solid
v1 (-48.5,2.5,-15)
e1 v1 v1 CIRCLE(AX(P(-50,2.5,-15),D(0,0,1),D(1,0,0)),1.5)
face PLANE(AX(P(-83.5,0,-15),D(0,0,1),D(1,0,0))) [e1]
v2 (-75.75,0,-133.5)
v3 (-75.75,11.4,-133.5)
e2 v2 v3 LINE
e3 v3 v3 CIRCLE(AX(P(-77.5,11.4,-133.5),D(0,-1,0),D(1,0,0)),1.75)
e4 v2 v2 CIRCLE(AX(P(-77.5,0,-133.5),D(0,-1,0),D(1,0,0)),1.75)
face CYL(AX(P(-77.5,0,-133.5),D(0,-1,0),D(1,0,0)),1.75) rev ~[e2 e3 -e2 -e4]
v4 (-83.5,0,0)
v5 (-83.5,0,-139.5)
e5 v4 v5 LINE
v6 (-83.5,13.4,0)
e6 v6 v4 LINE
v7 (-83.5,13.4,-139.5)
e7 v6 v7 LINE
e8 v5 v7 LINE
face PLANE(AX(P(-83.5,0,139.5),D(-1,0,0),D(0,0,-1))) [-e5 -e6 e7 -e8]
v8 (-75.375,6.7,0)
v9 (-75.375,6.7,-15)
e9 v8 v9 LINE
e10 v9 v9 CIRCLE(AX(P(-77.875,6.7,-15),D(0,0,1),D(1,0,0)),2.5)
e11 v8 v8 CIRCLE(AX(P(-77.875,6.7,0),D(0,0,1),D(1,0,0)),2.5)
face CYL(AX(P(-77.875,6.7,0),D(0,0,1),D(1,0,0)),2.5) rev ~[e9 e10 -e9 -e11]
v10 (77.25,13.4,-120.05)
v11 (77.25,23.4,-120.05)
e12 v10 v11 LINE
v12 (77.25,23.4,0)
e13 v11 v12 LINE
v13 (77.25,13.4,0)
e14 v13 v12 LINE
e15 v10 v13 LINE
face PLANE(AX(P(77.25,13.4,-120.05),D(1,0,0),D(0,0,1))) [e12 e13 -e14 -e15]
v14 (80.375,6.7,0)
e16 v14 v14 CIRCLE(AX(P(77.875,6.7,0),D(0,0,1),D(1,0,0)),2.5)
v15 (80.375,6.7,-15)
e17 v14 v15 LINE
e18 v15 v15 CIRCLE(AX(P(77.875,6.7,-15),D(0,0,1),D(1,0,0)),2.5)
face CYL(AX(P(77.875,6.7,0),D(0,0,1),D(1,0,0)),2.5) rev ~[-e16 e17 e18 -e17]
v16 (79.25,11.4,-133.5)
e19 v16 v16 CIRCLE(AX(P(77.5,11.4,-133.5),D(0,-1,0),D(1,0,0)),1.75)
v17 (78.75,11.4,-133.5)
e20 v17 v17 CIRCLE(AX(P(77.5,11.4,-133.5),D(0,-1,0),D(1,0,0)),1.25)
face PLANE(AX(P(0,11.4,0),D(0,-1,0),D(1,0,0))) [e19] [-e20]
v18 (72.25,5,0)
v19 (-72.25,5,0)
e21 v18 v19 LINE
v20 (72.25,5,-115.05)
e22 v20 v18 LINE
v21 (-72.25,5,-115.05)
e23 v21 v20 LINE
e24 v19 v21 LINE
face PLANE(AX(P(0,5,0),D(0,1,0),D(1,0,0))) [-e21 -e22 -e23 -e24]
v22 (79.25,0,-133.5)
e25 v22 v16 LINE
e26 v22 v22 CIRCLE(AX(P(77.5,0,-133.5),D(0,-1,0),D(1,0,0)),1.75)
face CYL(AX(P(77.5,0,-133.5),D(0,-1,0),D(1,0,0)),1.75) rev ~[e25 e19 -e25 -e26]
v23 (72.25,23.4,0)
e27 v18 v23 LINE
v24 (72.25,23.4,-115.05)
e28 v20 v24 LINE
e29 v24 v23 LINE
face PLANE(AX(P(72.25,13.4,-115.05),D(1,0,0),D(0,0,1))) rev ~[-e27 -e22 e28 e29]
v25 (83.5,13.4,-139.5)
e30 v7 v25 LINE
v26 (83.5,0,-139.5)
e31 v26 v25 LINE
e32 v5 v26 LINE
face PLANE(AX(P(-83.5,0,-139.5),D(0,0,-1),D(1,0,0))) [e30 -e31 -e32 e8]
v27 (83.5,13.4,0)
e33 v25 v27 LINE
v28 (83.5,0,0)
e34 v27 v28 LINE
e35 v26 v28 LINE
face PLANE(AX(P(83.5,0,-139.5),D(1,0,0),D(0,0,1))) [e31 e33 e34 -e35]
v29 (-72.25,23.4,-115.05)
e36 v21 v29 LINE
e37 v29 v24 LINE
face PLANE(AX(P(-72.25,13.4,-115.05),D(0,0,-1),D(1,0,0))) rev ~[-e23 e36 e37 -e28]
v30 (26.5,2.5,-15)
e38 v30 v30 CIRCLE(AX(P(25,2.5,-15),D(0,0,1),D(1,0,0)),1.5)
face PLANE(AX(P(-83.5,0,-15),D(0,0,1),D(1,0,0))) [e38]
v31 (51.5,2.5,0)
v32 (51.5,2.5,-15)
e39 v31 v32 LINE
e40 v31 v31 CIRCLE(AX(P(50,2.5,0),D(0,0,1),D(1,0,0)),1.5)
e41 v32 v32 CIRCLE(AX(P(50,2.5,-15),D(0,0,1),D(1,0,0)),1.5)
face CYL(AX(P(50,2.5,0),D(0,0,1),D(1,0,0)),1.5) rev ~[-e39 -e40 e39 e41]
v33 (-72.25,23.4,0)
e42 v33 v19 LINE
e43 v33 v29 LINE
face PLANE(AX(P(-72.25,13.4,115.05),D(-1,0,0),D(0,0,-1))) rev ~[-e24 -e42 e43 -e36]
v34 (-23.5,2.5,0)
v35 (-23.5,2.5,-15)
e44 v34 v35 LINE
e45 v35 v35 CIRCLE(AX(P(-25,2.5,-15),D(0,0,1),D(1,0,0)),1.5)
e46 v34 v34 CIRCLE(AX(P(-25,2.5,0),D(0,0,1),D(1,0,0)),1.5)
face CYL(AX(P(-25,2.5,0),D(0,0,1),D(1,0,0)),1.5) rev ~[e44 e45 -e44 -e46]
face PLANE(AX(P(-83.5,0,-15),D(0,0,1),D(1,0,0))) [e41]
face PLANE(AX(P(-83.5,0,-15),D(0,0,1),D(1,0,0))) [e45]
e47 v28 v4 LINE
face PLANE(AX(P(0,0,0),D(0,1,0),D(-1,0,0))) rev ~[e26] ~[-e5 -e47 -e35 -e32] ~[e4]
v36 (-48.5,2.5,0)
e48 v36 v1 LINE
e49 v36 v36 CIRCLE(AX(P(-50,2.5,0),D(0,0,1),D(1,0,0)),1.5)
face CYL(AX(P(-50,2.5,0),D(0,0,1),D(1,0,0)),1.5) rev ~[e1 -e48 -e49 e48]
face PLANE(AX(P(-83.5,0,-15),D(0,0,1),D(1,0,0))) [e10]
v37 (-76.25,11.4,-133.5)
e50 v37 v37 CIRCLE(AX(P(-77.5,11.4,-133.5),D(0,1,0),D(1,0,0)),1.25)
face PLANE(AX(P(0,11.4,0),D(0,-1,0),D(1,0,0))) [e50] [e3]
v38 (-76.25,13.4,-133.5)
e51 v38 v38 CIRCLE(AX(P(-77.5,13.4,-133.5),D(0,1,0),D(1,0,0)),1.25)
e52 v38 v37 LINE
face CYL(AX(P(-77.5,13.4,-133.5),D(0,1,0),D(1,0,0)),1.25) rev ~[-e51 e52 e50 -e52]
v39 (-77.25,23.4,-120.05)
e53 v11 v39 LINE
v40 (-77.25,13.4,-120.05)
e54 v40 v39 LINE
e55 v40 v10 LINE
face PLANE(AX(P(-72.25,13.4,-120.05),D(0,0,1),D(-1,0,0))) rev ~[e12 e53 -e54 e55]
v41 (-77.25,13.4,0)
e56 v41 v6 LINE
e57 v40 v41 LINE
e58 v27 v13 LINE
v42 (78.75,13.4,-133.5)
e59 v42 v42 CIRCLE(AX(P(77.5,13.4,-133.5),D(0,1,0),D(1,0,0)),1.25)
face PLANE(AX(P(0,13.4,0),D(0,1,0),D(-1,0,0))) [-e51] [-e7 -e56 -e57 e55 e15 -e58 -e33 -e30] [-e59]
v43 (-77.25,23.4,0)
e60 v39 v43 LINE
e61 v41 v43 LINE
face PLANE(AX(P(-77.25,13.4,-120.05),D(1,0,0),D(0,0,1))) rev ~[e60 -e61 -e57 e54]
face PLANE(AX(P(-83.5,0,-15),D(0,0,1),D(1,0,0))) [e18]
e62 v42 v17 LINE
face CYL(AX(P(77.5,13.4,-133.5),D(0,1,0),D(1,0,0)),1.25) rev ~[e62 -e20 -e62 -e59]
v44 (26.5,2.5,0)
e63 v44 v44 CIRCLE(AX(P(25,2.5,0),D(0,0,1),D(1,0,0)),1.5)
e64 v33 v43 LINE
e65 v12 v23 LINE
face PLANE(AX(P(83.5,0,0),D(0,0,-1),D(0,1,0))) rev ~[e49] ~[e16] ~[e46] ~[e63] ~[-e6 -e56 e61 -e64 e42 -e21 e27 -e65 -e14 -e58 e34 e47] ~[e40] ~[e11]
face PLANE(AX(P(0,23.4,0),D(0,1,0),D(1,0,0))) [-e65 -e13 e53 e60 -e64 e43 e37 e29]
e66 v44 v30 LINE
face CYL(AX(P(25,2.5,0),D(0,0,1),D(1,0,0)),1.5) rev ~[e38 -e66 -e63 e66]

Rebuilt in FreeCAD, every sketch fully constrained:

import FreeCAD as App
import Part
import Sketcher
Q = App.Units.Quantity

doc = App.newDocument("Part")
params = doc.addObject("Spreadsheet::Sheet", "Params")
for row, (alias, value) in enumerate([
    ("sketch1_width", "167 mm"),
    ("sketch1_height", "279 mm"),
    ("pad1_length", "13.4 mm"),
    ("sketch2_width", "144.5 mm"),
    ("sketch2_height", "230.1 mm"),
    ("pocket1_length", "8.4 mm"),
    ("sketch3_diameter", "2.5 mm"),
    ("sketch4_height", "240.1 mm"),
    ("sketch4_width", "154.5 mm"),
    ("pad2_length", "10 mm"),
    ("sketch5_diameter", "3.5 mm"),
    ("sketch5_diameter2", "2.5 mm"),
    ("pocket3_length", "11.4 mm"),
    ("sketch6_width", "23.4 mm"),
    ("sketch6_height", "139.5 mm"),
    ("pocket4_length", "167.1625 mm"),
    ("sketch7_diameter", "5 mm"),
    ("sketch7_diameter2", "3 mm"),
    ("pocket5_length", "15 mm"),
], start=1):
    params.set(f"A{row}", alias)
    params.set(f"B{row}", "=" + value)
    params.setAlias(f"B{row}", alias)

body = doc.addObject("PartDesign::Body", "Body")

# Sketch on XZ plane
sketch1 = body.newObject("Sketcher::SketchObject", "Sketch")
sketch1.AttachmentSupport = (doc.getObject("XZ_Plane"), [""])
sketch1.MapMode = "FlatFace"
sketch1.addGeometry(Part.LineSegment(App.Vector(-83.5, 139.5, 0), App.Vector(83.5, 139.5, 0)), False)
sketch1.addGeometry(Part.LineSegment(App.Vector(83.5, 139.5, 0), App.Vector(83.5, -139.5, 0)), False)
sketch1.addGeometry(Part.LineSegment(App.Vector(83.5, -139.5, 0), App.Vector(-83.5, -139.5, 0)), False)
sketch1.addGeometry(Part.LineSegment(App.Vector(-83.5, -139.5, 0), App.Vector(-83.5, 139.5, 0)), False)
sketch1.addConstraint(Sketcher.Constraint("Coincident", 0, 2, 1, 1))
sketch1.addConstraint(Sketcher.Constraint("Coincident", 1, 2, 2, 1))
sketch1.addConstraint(Sketcher.Constraint("Coincident", 2, 2, 3, 1))
sketch1.addConstraint(Sketcher.Constraint("Coincident", 3, 2, 0, 1))
sketch1.addConstraint(Sketcher.Constraint("Horizontal", 0))
sketch1.addConstraint(Sketcher.Constraint("Vertical", 1))
sketch1.addConstraint(Sketcher.Constraint("Horizontal", 2))
sketch1.addConstraint(Sketcher.Constraint("Vertical", 3))
sketch1.addConstraint(Sketcher.Constraint("Symmetric", 0, 2, 2, 2, -1, 1))
sketch1.addConstraint(Sketcher.Constraint("DistanceX", 0, 1, 0, 2, Q("167 mm")))
sketch1.addConstraint(Sketcher.Constraint("DistanceY", 1, 2, 1, 1, Q("279 mm")))
sketch1.setExpression("Constraints[9]", "Params.sketch1_width")
sketch1.setExpression("Constraints[10]", "Params.sketch1_height")
pad1 = body.newObject("PartDesign::Pad", "Pad")
pad1.Profile = sketch1
pad1.setExpression("Length", "Params.pad1_length")
pad1.Reversed = True

# Sketch on XZ plane
sketch2 = body.newObject("Sketcher::SketchObject", "Sketch001")
sketch2.AttachmentSupport = (doc.getObject("XZ_Plane"), [""])
sketch2.MapMode = "FlatFace"
sketch2.AttachmentOffset = App.Placement(App.Vector(0, 0, -13.4), App.Rotation())
sketch2.addGeometry(Part.LineSegment(App.Vector(-72.25, 115.05, 0), App.Vector(72.25, 115.05, 0)), False)
sketch2.addGeometry(Part.LineSegment(App.Vector(72.25, 115.05, 0), App.Vector(72.25, -115.05, 0)), False)
sketch2.addGeometry(Part.LineSegment(App.Vector(72.25, -115.05, 0), App.Vector(-72.25, -115.05, 0)), False)
sketch2.addGeometry(Part.LineSegment(App.Vector(-72.25, -115.05, 0), App.Vector(-72.25, 115.05, 0)), False)
sketch2.addConstraint(Sketcher.Constraint("Coincident", 0, 2, 1, 1))
sketch2.addConstraint(Sketcher.Constraint("Coincident", 1, 2, 2, 1))
sketch2.addConstraint(Sketcher.Constraint("Coincident", 2, 2, 3, 1))
sketch2.addConstraint(Sketcher.Constraint("Coincident", 3, 2, 0, 1))
sketch2.addConstraint(Sketcher.Constraint("Horizontal", 0))
sketch2.addConstraint(Sketcher.Constraint("Vertical", 1))
sketch2.addConstraint(Sketcher.Constraint("Horizontal", 2))
sketch2.addConstraint(Sketcher.Constraint("Vertical", 3))
sketch2.addConstraint(Sketcher.Constraint("Symmetric", 0, 2, 2, 2, -1, 1))
sketch2.addConstraint(Sketcher.Constraint("DistanceX", 0, 1, 0, 2, Q("144.5 mm")))
sketch2.addConstraint(Sketcher.Constraint("DistanceY", 1, 2, 1, 1, Q("230.1 mm")))
sketch2.setExpression("Constraints[9]", "Params.sketch2_width")
sketch2.setExpression("Constraints[10]", "Params.sketch2_height")
pocket1 = body.newObject("PartDesign::Pocket", "Pocket")
pocket1.Profile = sketch2
pocket1.setExpression("Length", "Params.pocket1_length")
pocket1.Reversed = True

# Sketch on XZ plane
sketch3 = body.newObject("Sketcher::SketchObject", "Sketch002")
sketch3.AttachmentSupport = (doc.getObject("XZ_Plane"), [""])
sketch3.MapMode = "FlatFace"
sketch3.AttachmentOffset = App.Placement(App.Vector(0, 0, -13.4), App.Rotation())
sketch3.addGeometry(Part.Circle(App.Vector(-77.5, 133.5, 0), App.Vector(0, 0, 1), 1.25), False)
sketch3.addGeometry(Part.Circle(App.Vector(-77.5, -133.5, 0), App.Vector(0, 0, 1), 1.25), False)
sketch3.addGeometry(Part.Circle(App.Vector(77.5, -133.5, 0), App.Vector(0, 0, 1), 1.25), False)
sketch3.addGeometry(Part.Circle(App.Vector(77.5, 133.5, 0), App.Vector(0, 0, 1), 1.25), False)
sketch3.addConstraint(Sketcher.Constraint("Equal", 0, 1))
sketch3.addConstraint(Sketcher.Constraint("Equal", 1, 2))
sketch3.addConstraint(Sketcher.Constraint("Equal", 2, 3))
sketch3.addConstraint(Sketcher.Constraint("Symmetric", 0, 3, 2, 3, -1, 1))
sketch3.addConstraint(Sketcher.Constraint("Symmetric", 1, 3, 3, 3, -1, 1))
sketch3.addConstraint(Sketcher.Constraint("Symmetric", 1, 3, 2, 3, -2))
sketch3.addConstraint(Sketcher.Constraint("Diameter", 0, Q("2.5 mm")))
sketch3.addConstraint(Sketcher.Constraint("DistanceY", 1, 3, 0, 3, Q("267 mm")))
sketch3.addConstraint(Sketcher.Constraint("DistanceX", 1, 3, 2, 3, Q("155 mm")))
sketch3.setExpression("Constraints[6]", "Params.sketch3_diameter")
pocket2 = body.newObject("PartDesign::Pocket", "Pocket001")
pocket2.Profile = sketch3
pocket2.Type = "ThroughAll"
pocket2.Reversed = True

# Sketch on XZ plane
sketch4 = body.newObject("Sketcher::SketchObject", "Sketch003")
sketch4.AttachmentSupport = (doc.getObject("XZ_Plane"), [""])
sketch4.MapMode = "FlatFace"
sketch4.AttachmentOffset = App.Placement(App.Vector(0, 0, -13.4), App.Rotation())
sketch4.addGeometry(Part.LineSegment(App.Vector(-77.25, 120.05, 0), App.Vector(77.25, 120.05, 0)), False)
sketch4.addGeometry(Part.LineSegment(App.Vector(77.25, 120.05, 0), App.Vector(77.25, -120.05, 0)), False)
sketch4.addGeometry(Part.LineSegment(App.Vector(77.25, -120.05, 0), App.Vector(-77.25, -120.05, 0)), False)
sketch4.addGeometry(Part.LineSegment(App.Vector(-77.25, -120.05, 0), App.Vector(-77.25, 120.05, 0)), False)
sketch4.addGeometry(Part.LineSegment(App.Vector(-72.25, 115.05, 0), App.Vector(-72.25, -115.05, 0)), False)
sketch4.addGeometry(Part.LineSegment(App.Vector(-72.25, -115.05, 0), App.Vector(72.25, -115.05, 0)), False)
sketch4.addGeometry(Part.LineSegment(App.Vector(72.25, -115.05, 0), App.Vector(72.25, 115.05, 0)), False)
sketch4.addGeometry(Part.LineSegment(App.Vector(72.25, 115.05, 0), App.Vector(-72.25, 115.05, 0)), False)
sketch4.addConstraint(Sketcher.Constraint("Coincident", 0, 2, 1, 1))
sketch4.addConstraint(Sketcher.Constraint("Coincident", 1, 2, 2, 1))
sketch4.addConstraint(Sketcher.Constraint("Coincident", 2, 2, 3, 1))
sketch4.addConstraint(Sketcher.Constraint("Coincident", 3, 2, 0, 1))
sketch4.addConstraint(Sketcher.Constraint("Coincident", 4, 2, 5, 1))
sketch4.addConstraint(Sketcher.Constraint("Coincident", 5, 2, 6, 1))
sketch4.addConstraint(Sketcher.Constraint("Coincident", 6, 2, 7, 1))
sketch4.addConstraint(Sketcher.Constraint("Coincident", 7, 2, 4, 1))
sketch4.addConstraint(Sketcher.Constraint("Horizontal", 0))
sketch4.addConstraint(Sketcher.Constraint("Vertical", 1))
sketch4.addConstraint(Sketcher.Constraint("Horizontal", 2))
sketch4.addConstraint(Sketcher.Constraint("Vertical", 3))
sketch4.addConstraint(Sketcher.Constraint("Vertical", 4))
sketch4.addConstraint(Sketcher.Constraint("Horizontal", 5))
sketch4.addConstraint(Sketcher.Constraint("Vertical", 6))
sketch4.addConstraint(Sketcher.Constraint("Horizontal", 7))
sketch4.addConstraint(Sketcher.Constraint("Symmetric", 0, 2, 2, 2, -1, 1))
sketch4.addConstraint(Sketcher.Constraint("Symmetric", 4, 2, 6, 2, -1, 1))
sketch4.addConstraint(Sketcher.Constraint("DistanceY", 1, 2, 1, 1, Q("240.1 mm")))
sketch4.addConstraint(Sketcher.Constraint("DistanceX", 2, 2, 4, 2, Q("5 mm")))
sketch4.addConstraint(Sketcher.Constraint("DistanceY", 2, 2, 4, 2, Q("5 mm")))
sketch4.addConstraint(Sketcher.Constraint("DistanceX", 0, 1, 0, 2, Q("154.5 mm")))
sketch4.setExpression("Constraints[18]", "Params.sketch4_height")
sketch4.setExpression("Constraints[21]", "Params.sketch4_width")
pad2 = body.newObject("PartDesign::Pad", "Pad001")
pad2.Profile = sketch4
pad2.setExpression("Length", "Params.pad2_length")
pad2.Reversed = True

# Sketch on XZ plane
sketch5 = body.newObject("Sketcher::SketchObject", "Sketch004")
sketch5.AttachmentSupport = (doc.getObject("XZ_Plane"), [""])
sketch5.MapMode = "FlatFace"
sketch5.addGeometry(Part.Circle(App.Vector(-77.5, -133.5, 0), App.Vector(0, 0, 1), 1.75), False)
sketch5.addGeometry(Part.Circle(App.Vector(-77.5, 133.5, 0), App.Vector(0, 0, 1), 1.75), False)
sketch5.addGeometry(Part.Circle(App.Vector(77.5, 133.5, 0), App.Vector(0, 0, 1), 1.75), False)
sketch5.addGeometry(Part.Circle(App.Vector(77.5, -133.5, 0), App.Vector(0, 0, 1), 1.75), False)
sketch5.addGeometry(Part.Circle(App.Vector(77.5, -133.5, 0), App.Vector(0, 0, 1), 1.25), False)
sketch5.addConstraint(Sketcher.Constraint("Coincident", 4, 3, 3, 3))
sketch5.addConstraint(Sketcher.Constraint("Equal", 0, 1))
sketch5.addConstraint(Sketcher.Constraint("Equal", 1, 2))
sketch5.addConstraint(Sketcher.Constraint("Equal", 2, 3))
sketch5.addConstraint(Sketcher.Constraint("Symmetric", 0, 3, 2, 3, -1, 1))
sketch5.addConstraint(Sketcher.Constraint("Symmetric", 1, 3, 3, 3, -1, 1))
sketch5.addConstraint(Sketcher.Constraint("Symmetric", 1, 3, 2, 3, -2))
sketch5.addConstraint(Sketcher.Constraint("Diameter", 0, Q("3.5 mm")))
sketch5.addConstraint(Sketcher.Constraint("Diameter", 4, Q("2.5 mm")))
sketch5.addConstraint(Sketcher.Constraint("DistanceY", 0, 3, 1, 3, Q("267 mm")))
sketch5.addConstraint(Sketcher.Constraint("DistanceX", 1, 3, 2, 3, Q("155 mm")))
sketch5.setExpression("Constraints[7]", "Params.sketch5_diameter")
sketch5.setExpression("Constraints[8]", "Params.sketch5_diameter2")
pocket3 = body.newObject("PartDesign::Pocket", "Pocket002")
pocket3.Profile = sketch5
pocket3.setExpression("Length", "Params.pocket3_length")

# Sketch on YZ plane
sketch6 = body.newObject("Sketcher::SketchObject", "Sketch005")
sketch6.AttachmentSupport = (doc.getObject("YZ_Plane"), [""])
sketch6.MapMode = "FlatFace"
sketch6.AttachmentOffset = App.Placement(App.Vector(0, 0, 83.5), App.Rotation())
sketch6.addGeometry(Part.LineSegment(App.Vector(0, 139.5, 0), App.Vector(0, 0, 0)), False)
sketch6.addGeometry(Part.LineSegment(App.Vector(0, 0, 0), App.Vector(23.4, 0, 0)), False)
sketch6.addGeometry(Part.LineSegment(App.Vector(23.4, 0, 0), App.Vector(23.4, 139.5, 0)), False)
sketch6.addGeometry(Part.LineSegment(App.Vector(23.4, 139.5, 0), App.Vector(0, 139.5, 0)), False)
sketch6.addConstraint(Sketcher.Constraint("Coincident", 0, 2, 1, 1))
sketch6.addConstraint(Sketcher.Constraint("Coincident", 1, 2, 2, 1))
sketch6.addConstraint(Sketcher.Constraint("Coincident", 2, 2, 3, 1))
sketch6.addConstraint(Sketcher.Constraint("Coincident", 3, 2, 0, 1))
sketch6.addConstraint(Sketcher.Constraint("Vertical", 0))
sketch6.addConstraint(Sketcher.Constraint("Horizontal", 1))
sketch6.addConstraint(Sketcher.Constraint("Vertical", 2))
sketch6.addConstraint(Sketcher.Constraint("Horizontal", 3))
sketch6.addConstraint(Sketcher.Constraint("Coincident", 0, 2, -1, 1))
sketch6.addConstraint(Sketcher.Constraint("DistanceX", 1, 1, 1, 2, Q("23.4 mm")))
sketch6.addConstraint(Sketcher.Constraint("DistanceY", 0, 2, 0, 1, Q("139.5 mm")))
sketch6.setExpression("Constraints[9]", "Params.sketch6_width")
sketch6.setExpression("Constraints[10]", "Params.sketch6_height")
pocket4 = body.newObject("PartDesign::Pocket", "Pocket003")
pocket4.Profile = sketch6
pocket4.setExpression("Length", "Params.pocket4_length")

# Sketch on XY plane
sketch7 = body.newObject("Sketcher::SketchObject", "Sketch006")
sketch7.AttachmentSupport = (doc.getObject("XY_Plane"), [""])
sketch7.MapMode = "FlatFace"
sketch7.addGeometry(Part.Circle(App.Vector(-77.875, 6.7, 0), App.Vector(0, 0, 1), 2.5), False)
sketch7.addGeometry(Part.Circle(App.Vector(77.875, 6.7, 0), App.Vector(0, 0, 1), 2.5), False)
sketch7.addGeometry(Part.Circle(App.Vector(-25, 2.5, 0), App.Vector(0, 0, 1), 1.5), False)
sketch7.addGeometry(Part.Circle(App.Vector(-50, 2.5, 0), App.Vector(0, 0, 1), 1.5), False)
sketch7.addGeometry(Part.Circle(App.Vector(25, 2.5, 0), App.Vector(0, 0, 1), 1.5), False)
sketch7.addGeometry(Part.Circle(App.Vector(50, 2.5, 0), App.Vector(0, 0, 1), 1.5), False)
sketch7.addConstraint(Sketcher.Constraint("Equal", 0, 1))
sketch7.addConstraint(Sketcher.Constraint("Equal", 2, 3))
sketch7.addConstraint(Sketcher.Constraint("Equal", 3, 4))
sketch7.addConstraint(Sketcher.Constraint("Equal", 4, 5))
sketch7.addConstraint(Sketcher.Constraint("Symmetric", 0, 3, 1, 3, -2))
sketch7.addConstraint(Sketcher.Constraint("Symmetric", 2, 3, 4, 3, -2))
sketch7.addConstraint(Sketcher.Constraint("Symmetric", 3, 3, 5, 3, -2))
sketch7.addConstraint(Sketcher.Constraint("Horizontal", 2, 3, 3, 3))
sketch7.addConstraint(Sketcher.Constraint("Diameter", 0, Q("5 mm")))
sketch7.addConstraint(Sketcher.Constraint("Diameter", 2, Q("3 mm")))
sketch7.addConstraint(Sketcher.Constraint("DistanceX", 2, 3, -1, 1, Q("25 mm")))
sketch7.addConstraint(Sketcher.Constraint("DistanceX", 3, 3, -1, 1, Q("50 mm")))
sketch7.addConstraint(Sketcher.Constraint("DistanceY", -1, 1, 0, 3, Q("6.7 mm")))
sketch7.addConstraint(Sketcher.Constraint("DistanceY", -1, 1, 2, 3, Q("2.5 mm")))
sketch7.addConstraint(Sketcher.Constraint("DistanceX", 0, 3, 1, 3, Q("155.75 mm")))
sketch7.setExpression("Constraints[8]", "Params.sketch7_diameter")
sketch7.setExpression("Constraints[9]", "Params.sketch7_diameter2")
pocket5 = body.newObject("PartDesign::Pocket", "Pocket004")
pocket5.Profile = sketch7
pocket5.setExpression("Length", "Params.pocket5_length")

doc.recompute()
